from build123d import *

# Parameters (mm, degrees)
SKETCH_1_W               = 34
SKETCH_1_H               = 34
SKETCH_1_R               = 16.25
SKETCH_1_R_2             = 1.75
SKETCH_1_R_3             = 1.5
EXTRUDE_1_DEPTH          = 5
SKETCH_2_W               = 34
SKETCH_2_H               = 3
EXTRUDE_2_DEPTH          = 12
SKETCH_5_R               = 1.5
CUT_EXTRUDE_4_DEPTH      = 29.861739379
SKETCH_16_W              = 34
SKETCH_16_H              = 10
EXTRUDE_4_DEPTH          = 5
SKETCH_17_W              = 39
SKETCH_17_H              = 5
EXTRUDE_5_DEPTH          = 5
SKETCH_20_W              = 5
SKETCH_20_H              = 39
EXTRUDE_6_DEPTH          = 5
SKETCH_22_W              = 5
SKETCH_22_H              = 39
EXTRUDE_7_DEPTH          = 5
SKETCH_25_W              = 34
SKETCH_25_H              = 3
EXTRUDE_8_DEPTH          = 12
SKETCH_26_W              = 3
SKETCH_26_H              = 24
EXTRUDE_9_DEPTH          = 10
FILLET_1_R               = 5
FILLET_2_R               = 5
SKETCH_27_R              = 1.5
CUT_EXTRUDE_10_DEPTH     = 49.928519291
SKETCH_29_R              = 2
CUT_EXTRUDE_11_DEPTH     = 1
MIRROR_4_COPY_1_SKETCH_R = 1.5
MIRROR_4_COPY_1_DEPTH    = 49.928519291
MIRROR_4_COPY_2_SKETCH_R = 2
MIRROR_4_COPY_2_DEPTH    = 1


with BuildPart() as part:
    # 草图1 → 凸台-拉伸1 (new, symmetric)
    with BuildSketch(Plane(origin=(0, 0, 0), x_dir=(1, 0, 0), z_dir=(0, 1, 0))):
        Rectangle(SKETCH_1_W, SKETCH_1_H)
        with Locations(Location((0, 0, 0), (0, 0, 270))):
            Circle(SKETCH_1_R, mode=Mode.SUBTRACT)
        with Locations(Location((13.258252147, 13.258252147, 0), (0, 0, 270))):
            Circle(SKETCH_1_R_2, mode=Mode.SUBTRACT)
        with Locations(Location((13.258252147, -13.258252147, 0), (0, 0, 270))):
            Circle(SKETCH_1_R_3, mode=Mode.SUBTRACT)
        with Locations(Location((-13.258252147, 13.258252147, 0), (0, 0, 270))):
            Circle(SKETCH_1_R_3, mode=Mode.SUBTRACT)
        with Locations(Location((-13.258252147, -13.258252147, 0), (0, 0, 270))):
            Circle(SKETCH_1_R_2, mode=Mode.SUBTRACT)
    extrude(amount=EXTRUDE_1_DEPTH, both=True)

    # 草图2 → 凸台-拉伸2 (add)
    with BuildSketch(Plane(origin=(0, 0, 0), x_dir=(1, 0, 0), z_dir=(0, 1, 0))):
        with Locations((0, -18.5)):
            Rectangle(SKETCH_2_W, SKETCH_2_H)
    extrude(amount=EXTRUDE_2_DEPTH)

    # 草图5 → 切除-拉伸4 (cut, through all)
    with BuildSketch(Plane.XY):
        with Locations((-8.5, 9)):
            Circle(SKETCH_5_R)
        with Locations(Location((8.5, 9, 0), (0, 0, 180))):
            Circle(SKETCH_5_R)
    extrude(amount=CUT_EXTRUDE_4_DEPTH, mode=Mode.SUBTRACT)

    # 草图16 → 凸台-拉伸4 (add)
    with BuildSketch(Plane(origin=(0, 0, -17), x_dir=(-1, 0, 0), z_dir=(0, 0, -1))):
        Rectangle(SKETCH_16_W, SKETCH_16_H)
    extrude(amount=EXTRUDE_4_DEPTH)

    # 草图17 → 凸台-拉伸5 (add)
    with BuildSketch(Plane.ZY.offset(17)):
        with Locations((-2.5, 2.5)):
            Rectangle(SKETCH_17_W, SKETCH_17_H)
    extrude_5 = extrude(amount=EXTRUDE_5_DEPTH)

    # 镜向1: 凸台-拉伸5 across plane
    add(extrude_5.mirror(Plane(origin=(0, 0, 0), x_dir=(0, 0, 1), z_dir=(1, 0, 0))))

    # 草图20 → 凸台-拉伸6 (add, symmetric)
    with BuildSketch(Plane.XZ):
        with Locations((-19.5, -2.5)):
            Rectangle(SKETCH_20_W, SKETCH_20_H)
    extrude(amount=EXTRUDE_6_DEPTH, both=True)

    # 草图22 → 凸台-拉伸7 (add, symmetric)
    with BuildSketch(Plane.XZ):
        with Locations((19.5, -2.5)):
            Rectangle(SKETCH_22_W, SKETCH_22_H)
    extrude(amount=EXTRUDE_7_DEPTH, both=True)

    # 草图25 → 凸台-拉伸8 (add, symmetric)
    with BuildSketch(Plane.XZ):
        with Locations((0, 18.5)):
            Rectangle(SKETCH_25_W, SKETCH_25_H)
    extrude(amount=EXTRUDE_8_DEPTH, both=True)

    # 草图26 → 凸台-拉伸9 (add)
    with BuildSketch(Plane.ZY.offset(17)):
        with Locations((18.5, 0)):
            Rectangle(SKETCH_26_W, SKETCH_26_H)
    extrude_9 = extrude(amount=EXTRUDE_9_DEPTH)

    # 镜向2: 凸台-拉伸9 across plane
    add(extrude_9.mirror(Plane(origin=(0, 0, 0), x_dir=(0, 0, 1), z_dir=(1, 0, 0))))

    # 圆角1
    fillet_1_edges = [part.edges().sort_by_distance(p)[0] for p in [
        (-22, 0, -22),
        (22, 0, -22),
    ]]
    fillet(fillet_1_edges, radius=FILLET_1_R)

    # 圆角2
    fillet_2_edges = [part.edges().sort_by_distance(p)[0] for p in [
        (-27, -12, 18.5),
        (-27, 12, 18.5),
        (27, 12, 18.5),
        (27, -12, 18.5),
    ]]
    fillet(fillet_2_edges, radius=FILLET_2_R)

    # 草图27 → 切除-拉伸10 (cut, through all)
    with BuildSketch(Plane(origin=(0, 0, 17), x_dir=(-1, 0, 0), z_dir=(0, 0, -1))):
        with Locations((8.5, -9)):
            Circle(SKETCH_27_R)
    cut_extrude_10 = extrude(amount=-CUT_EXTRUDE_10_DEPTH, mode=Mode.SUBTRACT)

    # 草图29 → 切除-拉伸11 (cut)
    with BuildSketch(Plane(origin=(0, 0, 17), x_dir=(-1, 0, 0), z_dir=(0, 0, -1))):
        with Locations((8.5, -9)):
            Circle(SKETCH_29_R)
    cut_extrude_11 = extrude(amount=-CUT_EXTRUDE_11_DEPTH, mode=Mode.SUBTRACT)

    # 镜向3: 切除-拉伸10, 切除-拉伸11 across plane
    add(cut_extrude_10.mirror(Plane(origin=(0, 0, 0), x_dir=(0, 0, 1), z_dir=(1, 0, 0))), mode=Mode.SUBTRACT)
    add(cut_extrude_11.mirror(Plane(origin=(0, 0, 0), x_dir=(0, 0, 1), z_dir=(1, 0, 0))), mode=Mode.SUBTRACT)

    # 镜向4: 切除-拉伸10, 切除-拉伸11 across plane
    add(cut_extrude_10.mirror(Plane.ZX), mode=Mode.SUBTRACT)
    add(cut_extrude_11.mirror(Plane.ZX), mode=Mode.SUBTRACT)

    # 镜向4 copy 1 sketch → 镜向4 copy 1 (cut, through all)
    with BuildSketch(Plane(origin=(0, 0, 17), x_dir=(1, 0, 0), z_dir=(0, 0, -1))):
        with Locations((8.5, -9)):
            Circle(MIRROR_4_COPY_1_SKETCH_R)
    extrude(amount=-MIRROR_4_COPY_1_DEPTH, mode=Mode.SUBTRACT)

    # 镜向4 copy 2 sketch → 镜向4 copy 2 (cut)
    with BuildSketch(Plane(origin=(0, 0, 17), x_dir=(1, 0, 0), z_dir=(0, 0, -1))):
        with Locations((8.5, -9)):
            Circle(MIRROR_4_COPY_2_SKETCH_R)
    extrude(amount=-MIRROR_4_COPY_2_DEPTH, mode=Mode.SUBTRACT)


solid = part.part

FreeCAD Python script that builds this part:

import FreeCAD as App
import Part
import Sketcher
from FreeCAD import Vector
Q = App.Units.Quantity


def edges_at(feature, points):
    """Names of the edges that pass closest to the given points."""
    edges = feature.Shape.Edges
    near = lambda p: min(range(len(edges)), key=lambda i: edges[i].distToShape(Part.Vertex(*p))[0])
    return sorted({f"Edge{near(p) + 1}" for p in points})

doc = App.newDocument("Part")
body = doc.addObject("PartDesign::Body", "Body")

sketch1 = doc.addObject("Sketcher::SketchObject", "Sketch")
body.addObject(sketch1)
sketch1.AttachmentSupport = (doc.XZ_Plane, [""])
sketch1.MapMode = "FlatFace"
sketch1.addGeometry([
    Part.LineSegment(Vector(-17, -17, 0), Vector(-17, 17, 0)),
    Part.LineSegment(Vector(-17, 17, 0), Vector(17, 17, 0)),
    Part.LineSegment(Vector(17, 17, 0), Vector(17, -17, 0)),
    Part.LineSegment(Vector(17, -17, 0), Vector(-17, -17, 0)),
    Part.Circle(Vector(-13.3, 13.3, 0), Vector(0, 0, 1), 1.8),
    Part.Circle(Vector(13.3, 13.3, 0), Vector(0, 0, 1), 1.5),
    Part.Circle(Vector(-13.3, -13.3, 0), Vector(0, 0, 1), 1.5),
    Part.Circle(Vector(0, 0, 0), Vector(0, 0, 1), 16.2),
    Part.Circle(Vector(13.3, -13.3, 0), Vector(0, 0, 1), 1.8),
], False)
sketch1.addConstraint([
    Sketcher.Constraint("Coincident", 0, 2, 1, 1),
    Sketcher.Constraint("Coincident", 1, 2, 2, 1),
    Sketcher.Constraint("Coincident", 2, 2, 3, 1),
    Sketcher.Constraint("Coincident", 3, 2, 0, 1),
    Sketcher.Constraint("Vertical", 0),
    Sketcher.Constraint("Horizontal", 1),
    Sketcher.Constraint("Vertical", 2),
    Sketcher.Constraint("Horizontal", 3),
    Sketcher.Constraint("Coincident", 7, 3, -1, 1),
    Sketcher.Constraint("Equal", 5, 6),
    Sketcher.Constraint("Equal", 4, 8),
    Sketcher.Constraint("Symmetric", 5, 3, 6, 3, -1, 1),
    Sketcher.Constraint("Symmetric", 4, 3, 8, 3, -1, 1),
    Sketcher.Constraint("Symmetric", 0, 2, 2, 2, -1, 1),
    Sketcher.Constraint("Symmetric", 4, 3, 5, 3, -2),
    Sketcher.Constraint("Equal", 3, 0),
    Sketcher.Constraint("Diameter", 5, Q("3 mm")),
    Sketcher.Constraint("Diameter", 4, Q("3.5 mm")),
    Sketcher.Constraint("Diameter", 7, Q("32.5 mm")),
    Sketcher.Constraint("DistanceX", 1, 1, 1, 2, Q("34 mm")),
    Sketcher.Constraint("DistanceX", 4, 3, -1, 1, Q("13.258252 mm")),
    Sketcher.Constraint("DistanceY", -1, 1, 4, 3, Q("13.258252 mm")),
])
pad1 = doc.addObject("PartDesign::Pad", "Pad")
body.addObject(pad1)
pad1.Profile = sketch1
pad1.Length = 10
pad1.Midplane = True

sketch2 = doc.addObject("Sketcher::SketchObject", "Sketch001")
body.addObject(sketch2)
sketch2.AttachmentSupport = (doc.XZ_Plane, [""])
sketch2.MapMode = "FlatFace"
sketch2.addGeometry([
    Part.LineSegment(Vector(-17, 17, 0), Vector(-17, 20, 0)),
    Part.LineSegment(Vector(-17, 20, 0), Vector(17, 20, 0)),
    Part.LineSegment(Vector(17, 20, 0), Vector(17, 17, 0)),
    Part.LineSegment(Vector(17, 17, 0), Vector(-17, 17, 0)),
], False)
sketch2.addConstraint([
    Sketcher.Constraint("Coincident", 0, 2, 1, 1),
    Sketcher.Constraint("Coincident", 1, 2, 2, 1),
    Sketcher.Constraint("Coincident", 2, 2, 3, 1),
    Sketcher.Constraint("Coincident", 3, 2, 0, 1),
    Sketcher.Constraint("Vertical", 0),
    Sketcher.Constraint("Horizontal", 1),
    Sketcher.Constraint("Vertical", 2),
    Sketcher.Constraint("Horizontal", 3),
    Sketcher.Constraint("DistanceX", 1, 1, 1, 2, Q("34 mm")),
    Sketcher.Constraint("DistanceY", 0, 1, 0, 2, Q("3 mm")),
    Sketcher.Constraint("DistanceX", 0, 2, -1, 1, Q("17 mm")),
    Sketcher.Constraint("DistanceY", -1, 1, 0, 2, Q("20 mm")),
])
pad2 = doc.addObject("PartDesign::Pad", "Pad001")
body.addObject(pad2)
pad2.Profile = sketch2
pad2.Length = 12
pad2.Reversed = True

sketch3 = doc.addObject("Sketcher::SketchObject", "Sketch002")
body.addObject(sketch3)
sketch3.AttachmentSupport = (doc.XY_Plane, [""])
sketch3.MapMode = "FlatFace"
sketch3.addGeometry([
    Part.Circle(Vector(-8.5, 9, 0), Vector(0, 0, 1), 1.5),
    Part.Circle(Vector(8.5, 9, 0), Vector(0, 0, 1), 1.5),
], False)
sketch3.addConstraint([
    Sketcher.Constraint("Equal", 0, 1),
    Sketcher.Constraint("Symmetric", 0, 3, 1, 3, -2),
    Sketcher.Constraint("Diameter", 0, Q("3 mm")),
    Sketcher.Constraint("DistanceY", -1, 1, 0, 3, Q("9 mm")),
    Sketcher.Constraint("DistanceX", 0, 3, 1, 3, Q("17 mm")),
])
pocket1 = doc.addObject("PartDesign::Pocket", "Pocket")
body.addObject(pocket1)
pocket1.Profile = sketch3
pocket1.Type = "ThroughAll"
pocket1.Reversed = True

sketch4 = doc.addObject("Sketcher::SketchObject", "Sketch003")
body.addObject(sketch4)
sketch4.AttachmentSupport = (doc.XY_Plane, [""])
sketch4.MapMode = "FlatFace"
sketch4.AttachmentOffset = App.Placement(Vector(0, 0, -17), App.Rotation())
sketch4.addGeometry([
    Part.LineSegment(Vector(17, 5, 0), Vector(17, -5, 0)),
    Part.LineSegment(Vector(17, -5, 0), Vector(-17, -5, 0)),
    Part.LineSegment(Vector(-17, -5, 0), Vector(-17, 5, 0)),
    Part.LineSegment(Vector(-17, 5, 0), Vector(17, 5, 0)),
], False)
sketch4.addConstraint([
    Sketcher.Constraint("Coincident", 0, 2, 1, 1),
    Sketcher.Constraint("Coincident", 1, 2, 2, 1),
    Sketcher.Constraint("Coincident", 2, 2, 3, 1),
    Sketcher.Constraint("Coincident", 3, 2, 0, 1),
    Sketcher.Constraint("Vertical", 0),
    Sketcher.Constraint("Horizontal", 1),
    Sketcher.Constraint("Vertical", 2),
    Sketcher.Constraint("Horizontal", 3),
    Sketcher.Constraint("Symmetric", 0, 2, 2, 2, -1, 1),
    Sketcher.Constraint("DistanceX", 1, 2, 1, 1, Q("34 mm")),
    Sketcher.Constraint("DistanceY", 0, 2, 0, 1, Q("10 mm")),
])
pad3 = doc.addObject("PartDesign::Pad", "Pad002")
body.addObject(pad3)
pad3.Profile = sketch4
pad3.Length = 5
pad3.Reversed = True

sketch5 = doc.addObject("Sketcher::SketchObject", "Sketch004")
body.addObject(sketch5)
sketch5.AttachmentSupport = (doc.YZ_Plane, [""])
sketch5.MapMode = "FlatFace"
sketch5.AttachmentOffset = App.Placement(Vector(0, 0, -17), App.Rotation())
sketch5.addGeometry([
    Part.LineSegment(Vector(5, -22, 0), Vector(0, -22, 0)),
    Part.LineSegment(Vector(0, -22, 0), Vector(0, 17, 0)),
    Part.LineSegment(Vector(0, 17, 0), Vector(5, 17, 0)),
    Part.LineSegment(Vector(5, 17, 0), Vector(5, -22, 0)),
], False)
sketch5.addConstraint([
    Sketcher.Constraint("Coincident", 0, 2, 1, 1),
    Sketcher.Constraint("Coincident", 1, 2, 2, 1),
    Sketcher.Constraint("Coincident", 2, 2, 3, 1),
    Sketcher.Constraint("Coincident", 3, 2, 0, 1),
    Sketcher.Constraint("Horizontal", 0),
    Sketcher.Constraint("Vertical", 1),
    Sketcher.Constraint("Horizontal", 2),
    Sketcher.Constraint("Vertical", 3),
    Sketcher.Constraint("PointOnObject", 0, 2, -2),
    Sketcher.Constraint("DistanceX", 0, 2, 0, 1, Q("5 mm")),
    Sketcher.Constraint("DistanceY", 1, 1, 1, 2, Q("39 mm")),
    Sketcher.Constraint("DistanceY", 0, 2, -1, 1, Q("22 mm")),
])
pad4 = doc.addObject("PartDesign::Pad", "Pad003")
body.addObject(pad4)
pad4.Profile = sketch5
pad4.Length = 5
pad4.Reversed = True
doc.recompute()

mirrored = doc.addObject("PartDesign::Mirrored", "Mirrored")
body.addObject(mirrored)
mirrored.Originals = [pad4]
mirrored.MirrorPlane = (doc.YZ_Plane, [""])
body.Tip = mirrored

sketch6 = doc.addObject("Sketcher::SketchObject", "Sketch005")
body.addObject(sketch6)
sketch6.AttachmentSupport = (doc.XZ_Plane, [""])
sketch6.MapMode = "FlatFace"
sketch6.addGeometry([
    Part.LineSegment(Vector(-22, 17, 0), Vector(-22, -22, 0)),
    Part.LineSegment(Vector(-22, -22, 0), Vector(-17, -22, 0)),
    Part.LineSegment(Vector(-17, -22, 0), Vector(-17, 17, 0)),
    Part.LineSegment(Vector(-17, 17, 0), Vector(-22, 17, 0)),
], False)
sketch6.addConstraint([
    Sketcher.Constraint("Coincident", 0, 2, 1, 1),
    Sketcher.Constraint("Coincident", 1, 2, 2, 1),
    Sketcher.Constraint("Coincident", 2, 2, 3, 1),
    Sketcher.Constraint("Coincident", 3, 2, 0, 1),
    Sketcher.Constraint("Vertical", 0),
    Sketcher.Constraint("Horizontal", 1),
    Sketcher.Constraint("Vertical", 2),
    Sketcher.Constraint("Horizontal", 3),
    Sketcher.Constraint("DistanceX", 1, 1, 1, 2, Q("5 mm")),
    Sketcher.Constraint("DistanceY", 0, 2, 0, 1, Q("39 mm")),
    Sketcher.Constraint("DistanceX", 0, 2, -1, 1, Q("22 mm")),
    Sketcher.Constraint("DistanceY", 0, 2, -1, 1, Q("22 mm")),
])
pad5 = doc.addObject("PartDesign::Pad", "Pad004")
body.addObject(pad5)
pad5.Profile = sketch6
pad5.Length = 10
pad5.Midplane = True

sketch7 = doc.addObject("Sketcher::SketchObject", "Sketch006")
body.addObject(sketch7)
sketch7.AttachmentSupport = (doc.XZ_Plane, [""])
sketch7.MapMode = "FlatFace"
sketch7.addGeometry([
    Part.LineSegment(Vector(17, 17, 0), Vector(17, -22, 0)),
    Part.LineSegment(Vector(17, -22, 0), Vector(22, -22, 0)),
    Part.LineSegment(Vector(22, -22, 0), Vector(22, 17, 0)),
    Part.LineSegment(Vector(22, 17, 0), Vector(17, 17, 0)),
], False)
sketch7.addConstraint([
    Sketcher.Constraint("Coincident", 0, 2, 1, 1),
    Sketcher.Constraint("Coincident", 1, 2, 2, 1),
    Sketcher.Constraint("Coincident", 2, 2, 3, 1),
    Sketcher.Constraint("Coincident", 3, 2, 0, 1),
    Sketcher.Constraint("Vertical", 0),
    Sketcher.Constraint("Horizontal", 1),
    Sketcher.Constraint("Vertical", 2),
    Sketcher.Constraint("Horizontal", 3),
    Sketcher.Constraint("DistanceX", 1, 1, 1, 2, Q("5 mm")),
    Sketcher.Constraint("DistanceY", 0, 2, 0, 1, Q("39 mm")),
    Sketcher.Constraint("DistanceX", -1, 1, 0, 2, Q("17 mm")),
    Sketcher.Constraint("DistanceY", 0, 2, -1, 1, Q("22 mm")),
])
pad6 = doc.addObject("PartDesign::Pad", "Pad005")
body.addObject(pad6)
pad6.Profile = sketch7
pad6.Length = 10
pad6.Midplane = True

sketch8 = doc.addObject("Sketcher::SketchObject", "Sketch007")
body.addObject(sketch8)
sketch8.AttachmentSupport = (doc.XZ_Plane, [""])
sketch8.MapMode = "FlatFace"
sketch8.addGeometry([
    Part.LineSegment(Vector(-17, 20, 0), Vector(-17, 17, 0)),
    Part.LineSegment(Vector(-17, 17, 0), Vector(17, 17, 0)),
    Part.LineSegment(Vector(17, 17, 0), Vector(17, 20, 0)),
    Part.LineSegment(Vector(17, 20, 0), Vector(-17, 20, 0)),
], False)
sketch8.addConstraint([
    Sketcher.Constraint("Coincident", 0, 2, 1, 1),
    Sketcher.Constraint("Coincident", 1, 2, 2, 1),
    Sketcher.Constraint("Coincident", 2, 2, 3, 1),
    Sketcher.Constraint("Coincident", 3, 2, 0, 1),
    Sketcher.Constraint("Vertical", 0),
    Sketcher.Constraint("Horizontal", 1),
    Sketcher.Constraint("Vertical", 2),
    Sketcher.Constraint("Horizontal", 3),
    Sketcher.Constraint("DistanceX", 1, 1, 1, 2, Q("34 mm")),
    Sketcher.Constraint("DistanceY", 0, 2, 0, 1, Q("3 mm")),
    Sketcher.Constraint("DistanceX", 0, 2, -1, 1, Q("17 mm")),
    Sketcher.Constraint("DistanceY", -1, 1, 0, 2, Q("17 mm")),
])
pad7 = doc.addObject("PartDesign::Pad", "Pad006")
body.addObject(pad7)
pad7.Profile = sketch8
pad7.Length = 24
pad7.Midplane = True

sketch9 = doc.addObject("Sketcher::SketchObject", "Sketch008")
body.addObject(sketch9)
sketch9.AttachmentSupport = (doc.YZ_Plane, [""])
sketch9.MapMode = "FlatFace"
sketch9.AttachmentOffset = App.Placement(Vector(0, 0, -17), App.Rotation())
sketch9.addGeometry([
    Part.LineSegment(Vector(12, 17, 0), Vector(-12, 17, 0)),
    Part.LineSegment(Vector(-12, 17, 0), Vector(-12, 20, 0)),
    Part.LineSegment(Vector(-12, 20, 0), Vector(12, 20, 0)),
    Part.LineSegment(Vector(12, 20, 0), Vector(12, 17, 0)),
], False)
sketch9.addConstraint([
    Sketcher.Constraint("Coincident", 0, 2, 1, 1),
    Sketcher.Constraint("Coincident", 1, 2, 2, 1),
    Sketcher.Constraint("Coincident", 2, 2, 3, 1),
    Sketcher.Constraint("Coincident", 3, 2, 0, 1),
    Sketcher.Constraint("Horizontal", 0),
    Sketcher.Constraint("Vertical", 1),
    Sketcher.Constraint("Horizontal", 2),
    Sketcher.Constraint("Vertical", 3),
    Sketcher.Constraint("DistanceX", 0, 2, 0, 1, Q("24 mm")),
    Sketcher.Constraint("DistanceY", 1, 1, 1, 2, Q("3 mm")),
    Sketcher.Constraint("DistanceX", 0, 2, -1, 1, Q("12 mm")),
    Sketcher.Constraint("DistanceY", -1, 1, 0, 2, Q("17 mm")),
])
pad8 = doc.addObject("PartDesign::Pad", "Pad007")
body.addObject(pad8)
pad8.Profile = sketch9
pad8.Length = 10
pad8.Reversed = True
doc.recompute()

mirrored2 = doc.addObject("PartDesign::Mirrored", "Mirrored001")
body.addObject(mirrored2)
mirrored2.Originals = [pad8]
mirrored2.MirrorPlane = (doc.YZ_Plane, [""])
body.Tip = mirrored2
doc.recompute()

fillet = doc.addObject("PartDesign::Fillet", "Fillet")
body.addObject(fillet)
fillet.Base = (mirrored2, edges_at(mirrored2, [(-22, 0, -22), (22, 0, -22)]))
fillet.Radius = 5
doc.recompute()

fillet2 = doc.addObject("PartDesign::Fillet", "Fillet001")
body.addObject(fillet2)
fillet2.Base = (fillet, edges_at(fillet, [
    (-27, -12, 18.5),
    (-27, 12, 18.5),
    (27, 12, 18.5),
    (27, -12, 18.5),
]))
fillet2.Radius = 5

sketch10 = doc.addObject("Sketcher::SketchObject", "Sketch009")
body.addObject(sketch10)
sketch10.AttachmentSupport = (doc.XY_Plane, [""])
sketch10.MapMode = "FlatFace"
sketch10.AttachmentOffset = App.Placement(Vector(0, 0, 17), App.Rotation())
sketch10.addGeometry(Part.Circle(Vector(-8.5, -9, 0), Vector(0, 0, 1), 1.5), False)
sketch10.addConstraint([
    Sketcher.Constraint("Diameter", 0, Q("3 mm")),
    Sketcher.Constraint("DistanceY", 0, 3, -1, 1, Q("9 mm")),
    Sketcher.Constraint("DistanceX", 0, 3, -1, 1, Q("8.5 mm")),
])
pocket2 = doc.addObject("PartDesign::Pocket", "Pocket001")
body.addObject(pocket2)
pocket2.Profile = sketch10
pocket2.Type = "ThroughAll"
pocket2.Reversed = True

sketch11 = doc.addObject("Sketcher::SketchObject", "Sketch010")
body.addObject(sketch11)
sketch11.AttachmentSupport = (doc.XY_Plane, [""])
sketch11.MapMode = "FlatFace"
sketch11.AttachmentOffset = App.Placement(Vector(0, 0, 17), App.Rotation())
sketch11.addGeometry(Part.Circle(Vector(-8.5, -9, 0), Vector(0, 0, 1), 2), False)
sketch11.addConstraint([
    Sketcher.Constraint("Diameter", 0, Q("4 mm")),
    Sketcher.Constraint("DistanceY", 0, 3, -1, 1, Q("9 mm")),
    Sketcher.Constraint("DistanceX", 0, 3, -1, 1, Q("8.5 mm")),
])
pocket3 = doc.addObject("PartDesign::Pocket", "Pocket002")
body.addObject(pocket3)
pocket3.Profile = sketch11
pocket3.Length = 1
pocket3.Reversed = True
doc.recompute()

mirrored3 = doc.addObject("PartDesign::Mirrored", "Mirrored002")
body.addObject(mirrored3)
mirrored3.Originals = [pocket2, pocket3]
mirrored3.MirrorPlane = (doc.YZ_Plane, [""])
body.Tip = mirrored3
doc.recompute()

mirrored4 = doc.addObject("PartDesign::Mirrored", "Mirrored003")
body.addObject(mirrored4)
mirrored4.Originals = [pocket2, pocket3]
mirrored4.MirrorPlane = (doc.XZ_Plane, [""])
body.Tip = mirrored4

sketch12 = doc.addObject("Sketcher::SketchObject", "Sketch011")
body.addObject(sketch12)
sketch12.AttachmentSupport = (doc.XY_Plane, [""])
sketch12.MapMode = "FlatFace"
sketch12.AttachmentOffset = App.Placement(Vector(0, 0, 17), App.Rotation())
sketch12.addGeometry(Part.Circle(Vector(8.5, 9, 0), Vector(0, 0, 1), 1.5), False)
sketch12.addConstraint([
    Sketcher.Constraint("Diameter", 0, Q("3 mm")),
    Sketcher.Constraint("DistanceY", -1, 1, 0, 3, Q("9 mm")),
    Sketcher.Constraint("DistanceX", -1, 1, 0, 3, Q("8.5 mm")),
])
pocket4 = doc.addObject("PartDesign::Pocket", "Pocket003")
body.addObject(pocket4)
pocket4.Profile = sketch12
pocket4.Type = "ThroughAll"
pocket4.Reversed = True

sketch13 = doc.addObject("Sketcher::SketchObject", "Sketch012")
body.addObject(sketch13)
sketch13.AttachmentSupport = (doc.XY_Plane, [""])
sketch13.MapMode = "FlatFace"
sketch13.AttachmentOffset = App.Placement(Vector(0, 0, 17), App.Rotation())
sketch13.addGeometry(Part.Circle(Vector(8.5, 9, 0), Vector(0, 0, 1), 2), False)
sketch13.addConstraint([
    Sketcher.Constraint("Diameter", 0, Q("4 mm")),
    Sketcher.Constraint("DistanceY", -1, 1, 0, 3, Q("9 mm")),
    Sketcher.Constraint("DistanceX", -1, 1, 0, 3, Q("8.5 mm")),
])
pocket5 = doc.addObject("PartDesign::Pocket", "Pocket004")
body.addObject(pocket5)
pocket5.Profile = sketch13
pocket5.Length = 1
pocket5.Reversed = True

doc.recompute()
